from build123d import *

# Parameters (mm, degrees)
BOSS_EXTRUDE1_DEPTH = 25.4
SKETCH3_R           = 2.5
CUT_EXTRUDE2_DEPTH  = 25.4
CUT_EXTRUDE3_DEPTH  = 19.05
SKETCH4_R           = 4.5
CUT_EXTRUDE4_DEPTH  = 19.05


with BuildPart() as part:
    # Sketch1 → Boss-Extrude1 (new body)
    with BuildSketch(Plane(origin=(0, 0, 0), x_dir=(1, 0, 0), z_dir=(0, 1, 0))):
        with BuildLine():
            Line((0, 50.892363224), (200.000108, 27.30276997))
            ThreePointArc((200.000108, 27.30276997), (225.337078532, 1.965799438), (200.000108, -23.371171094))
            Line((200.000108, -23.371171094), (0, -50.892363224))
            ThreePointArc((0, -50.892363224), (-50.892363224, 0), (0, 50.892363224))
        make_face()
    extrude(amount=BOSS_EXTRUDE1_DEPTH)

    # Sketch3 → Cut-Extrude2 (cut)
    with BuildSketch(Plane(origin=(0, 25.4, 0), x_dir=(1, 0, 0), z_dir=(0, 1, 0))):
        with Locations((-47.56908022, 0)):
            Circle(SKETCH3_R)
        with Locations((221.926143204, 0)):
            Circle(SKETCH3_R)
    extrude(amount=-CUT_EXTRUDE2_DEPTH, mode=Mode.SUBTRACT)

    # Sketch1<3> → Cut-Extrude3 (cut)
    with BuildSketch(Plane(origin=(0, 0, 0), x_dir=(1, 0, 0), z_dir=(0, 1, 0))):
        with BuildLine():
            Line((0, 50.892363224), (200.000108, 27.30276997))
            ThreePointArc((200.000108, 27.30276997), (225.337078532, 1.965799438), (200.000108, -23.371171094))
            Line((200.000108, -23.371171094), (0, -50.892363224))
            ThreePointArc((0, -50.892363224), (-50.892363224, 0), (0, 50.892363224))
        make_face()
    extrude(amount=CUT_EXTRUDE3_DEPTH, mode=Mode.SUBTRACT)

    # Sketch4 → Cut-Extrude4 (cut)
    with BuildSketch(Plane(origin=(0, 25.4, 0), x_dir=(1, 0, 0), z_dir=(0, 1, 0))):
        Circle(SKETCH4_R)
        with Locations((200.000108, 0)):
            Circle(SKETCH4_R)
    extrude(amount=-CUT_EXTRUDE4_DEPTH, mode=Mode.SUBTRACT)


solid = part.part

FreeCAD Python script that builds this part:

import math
import FreeCAD as App
import Part
import Sketcher

doc = App.newDocument("Part")
body = doc.addObject("PartDesign::Body", "Body")

# Sketch on XZ plane
sketch1 = body.newObject("Sketcher::SketchObject", "Sketch")
sketch1.AttachmentSupport = (doc.getObject("XZ_Plane"), [""])
sketch1.MapMode = "FlatFace"
sketch1.addGeometry(Part.LineSegment(App.Vector(200.000108, -27.30277, 0), App.Vector(0, -50.892363, 0)), False)
sketch1.addGeometry(Part.ArcOfCircle(Part.Circle(App.Vector(0, 0, 0), App.Vector(0, 0, 1), 50.892363), math.radians(90), math.radians(270)), False)
sketch1.addGeometry(Part.LineSegment(App.Vector(0, 50.892363, 0), App.Vector(200.000108, 23.371171, 0)), False)
sketch1.addGeometry(Part.ArcOfCircle(Part.Circle(App.Vector(200.000108, -1.965799, 0), App.Vector(0, 0, 1), 25.336971), math.radians(-90), math.radians(90)), False)
sketch1.addConstraint(Sketcher.Constraint("Coincident", 0, 2, 1, 2))
sketch1.addConstraint(Sketcher.Constraint("Coincident", 1, 1, 2, 1))
sketch1.addConstraint(Sketcher.Constraint("Coincident", 2, 2, 3, 2))
sketch1.addConstraint(Sketcher.Constraint("Coincident", 3, 1, 0, 1))
sketch1.addConstraint(Sketcher.Constraint("Coincident", 1, 3, -1, 1))
sketch1.addConstraint(Sketcher.Constraint("PointOnObject", 0, 2, -2))
sketch1.addConstraint(Sketcher.Constraint("PointOnObject", 1, 1, -2))
sketch1.addConstraint(Sketcher.Constraint("Vertical", 3, 3, 2, 2))
sketch1.addConstraint(Sketcher.Constraint("Vertical", 2, 2, 3, 1))
sketch1.addConstraint(Sketcher.Constraint("Radius", 3, 25.336971))
sketch1.addConstraint(Sketcher.Constraint("Radius", 1, 50.892363))
sketch1.addConstraint(Sketcher.Constraint("DistanceY", 3, 3, -1, 1, 1.965799))
sketch1.addConstraint(Sketcher.Constraint("DistanceX", -1, 1, 3, 3, 200.000108))
pad1 = body.newObject("PartDesign::Pad", "Pad")
pad1.Profile = sketch1
pad1.Length = 25.4
pad1.Reversed = True

# Sketch on XZ plane
sketch2 = body.newObject("Sketcher::SketchObject", "Sketch001")
sketch2.AttachmentSupport = (doc.getObject("XZ_Plane"), [""])
sketch2.MapMode = "FlatFace"
sketch2.AttachmentOffset = App.Placement(App.Vector(0, 0, -25.4), App.Rotation())
sketch2.addGeometry(Part.Circle(App.Vector(-47.56908, 0, 0), App.Vector(0, 0, 1), 2.5), False)
sketch2.addGeometry(Part.Circle(App.Vector(221.926143, 0, 0), App.Vector(0, 0, 1), 2.5), False)
sketch2.addConstraint(Sketcher.Constraint("Equal", 0, 1))
sketch2.addConstraint(Sketcher.Constraint("PointOnObject", 0, 3, -1))
sketch2.addConstraint(Sketcher.Constraint("PointOnObject", 1, 3, -1))
sketch2.addConstraint(Sketcher.Constraint("Diameter", 0, 5.0))
sketch2.addConstraint(Sketcher.Constraint("DistanceX", 0, 3, -1, 1, 47.56908))
sketch2.addConstraint(Sketcher.Constraint("DistanceX", -1, 1, 1, 3, 221.926143))
pocket1 = body.newObject("PartDesign::Pocket", "Pocket")
pocket1.Profile = sketch2
pocket1.Length = 25.4
pocket1.Reversed = True

# Sketch on XZ plane
sketch3 = body.newObject("Sketcher::SketchObject", "Sketch002")
sketch3.AttachmentSupport = (doc.getObject("XZ_Plane"), [""])
sketch3.MapMode = "FlatFace"
sketch3.addGeometry(Part.LineSegment(App.Vector(200.000108, -27.30277, 0), App.Vector(0, -50.892363, 0)), False)
sketch3.addGeometry(Part.ArcOfCircle(Part.Circle(App.Vector(0, 0, 0), App.Vector(0, 0, 1), 50.892363), math.radians(90), math.radians(270)), False)
sketch3.addGeometry(Part.LineSegment(App.Vector(0, 50.892363, 0), App.Vector(200.000108, 23.371171, 0)), False)
sketch3.addGeometry(Part.ArcOfCircle(Part.Circle(App.Vector(200.000108, -1.965799, 0), App.Vector(0, 0, 1), 25.336971), math.radians(-90), math.radians(90)), False)
sketch3.addConstraint(Sketcher.Constraint("Coincident", 0, 2, 1, 2))
sketch3.addConstraint(Sketcher.Constraint("Coincident", 1, 1, 2, 1))
sketch3.addConstraint(Sketcher.Constraint("Coincident", 2, 2, 3, 2))
sketch3.addConstraint(Sketcher.Constraint("Coincident", 3, 1, 0, 1))
sketch3.addConstraint(Sketcher.Constraint("Coincident", 1, 3, -1, 1))
sketch3.addConstraint(Sketcher.Constraint("PointOnObject", 0, 2, -2))
sketch3.addConstraint(Sketcher.Constraint("PointOnObject", 1, 1, -2))
sketch3.addConstraint(Sketcher.Constraint("Vertical", 3, 3, 2, 2))
sketch3.addConstraint(Sketcher.Constraint("Vertical", 2, 2, 3, 1))
sketch3.addConstraint(Sketcher.Constraint("Radius", 3, 25.336971))
sketch3.addConstraint(Sketcher.Constraint("Radius", 1, 50.892363))
sketch3.addConstraint(Sketcher.Constraint("DistanceY", 3, 3, -1, 1, 1.965799))
sketch3.addConstraint(Sketcher.Constraint("DistanceX", -1, 1, 3, 3, 200.000108))
pocket2 = body.newObject("PartDesign::Pocket", "Pocket001")
pocket2.Profile = sketch3
pocket2.Length = 19.05

# Sketch on XZ plane
sketch4 = body.newObject("Sketcher::SketchObject", "Sketch003")
sketch4.AttachmentSupport = (doc.getObject("XZ_Plane"), [""])
sketch4.MapMode = "FlatFace"
sketch4.AttachmentOffset = App.Placement(App.Vector(0, 0, -25.4), App.Rotation())
sketch4.addGeometry(Part.Circle(App.Vector(0, 0, 0), App.Vector(0, 0, 1), 4.5), False)
sketch4.addGeometry(Part.Circle(App.Vector(200.000108, 0, 0), App.Vector(0, 0, 1), 4.5), False)
sketch4.addConstraint(Sketcher.Constraint("Coincident", 0, 3, -1, 1))
sketch4.addConstraint(Sketcher.Constraint("Equal", 0, 1))
sketch4.addConstraint(Sketcher.Constraint("PointOnObject", 1, 3, -1))
sketch4.addConstraint(Sketcher.Constraint("Diameter", 0, 9.0))
sketch4.addConstraint(Sketcher.Constraint("DistanceX", -1, 1, 1, 3, 200.000108))
pocket3 = body.newObject("PartDesign::Pocket", "Pocket002")
pocket3.Profile = sketch4
pocket3.Length = 19.05
pocket3.Reversed = True

doc.recompute()
